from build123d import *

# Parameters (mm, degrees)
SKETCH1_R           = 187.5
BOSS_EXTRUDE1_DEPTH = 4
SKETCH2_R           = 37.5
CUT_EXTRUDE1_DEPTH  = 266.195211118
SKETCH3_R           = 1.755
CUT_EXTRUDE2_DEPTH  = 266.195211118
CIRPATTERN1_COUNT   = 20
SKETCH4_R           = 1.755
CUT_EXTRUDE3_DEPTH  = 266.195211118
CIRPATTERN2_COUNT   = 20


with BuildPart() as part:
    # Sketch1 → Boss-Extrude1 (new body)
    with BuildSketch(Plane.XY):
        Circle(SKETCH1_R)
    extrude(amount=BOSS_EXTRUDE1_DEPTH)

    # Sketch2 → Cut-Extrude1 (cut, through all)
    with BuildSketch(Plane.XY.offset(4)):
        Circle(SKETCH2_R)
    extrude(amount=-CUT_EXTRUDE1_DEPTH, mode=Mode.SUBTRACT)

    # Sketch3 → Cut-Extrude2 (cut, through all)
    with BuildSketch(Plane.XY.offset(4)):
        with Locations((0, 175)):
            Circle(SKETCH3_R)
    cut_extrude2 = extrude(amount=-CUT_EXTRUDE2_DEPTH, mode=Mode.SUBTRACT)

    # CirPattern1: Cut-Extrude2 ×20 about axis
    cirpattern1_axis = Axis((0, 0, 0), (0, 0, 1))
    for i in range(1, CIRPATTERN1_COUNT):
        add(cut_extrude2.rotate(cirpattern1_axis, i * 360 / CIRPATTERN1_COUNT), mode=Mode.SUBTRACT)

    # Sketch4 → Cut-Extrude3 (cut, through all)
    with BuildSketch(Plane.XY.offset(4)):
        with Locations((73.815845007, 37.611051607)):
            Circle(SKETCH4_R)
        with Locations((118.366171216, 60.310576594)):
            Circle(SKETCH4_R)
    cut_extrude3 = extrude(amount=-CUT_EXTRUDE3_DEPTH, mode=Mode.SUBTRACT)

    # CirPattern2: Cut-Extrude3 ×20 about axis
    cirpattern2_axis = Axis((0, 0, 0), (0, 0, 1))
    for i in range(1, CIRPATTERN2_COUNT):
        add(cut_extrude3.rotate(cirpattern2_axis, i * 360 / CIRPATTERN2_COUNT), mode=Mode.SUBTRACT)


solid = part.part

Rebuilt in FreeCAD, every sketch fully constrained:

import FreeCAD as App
import Part
import Sketcher

V = App.Vector

doc = App.newDocument("Part")
body = doc.addObject("PartDesign::Body", "Body")

# Sketch on XY plane
sketch1 = body.newObject("Sketcher::SketchObject", "Sketch")
sketch1.AttachmentSupport = (doc.getObject("XY_Plane"), [""])
sketch1.MapMode = "FlatFace"
sketch1.addGeometry(Part.Circle(V(0, 0, 0), V(0, 0, 1), 187.5), False)
sketch1.addConstraint([
    Sketcher.Constraint("Coincident", 0, 3, -1, 1),
    Sketcher.Constraint("Diameter", 0, 375.0),
])
pad1 = body.newObject("PartDesign::Pad", "Pad")
pad1.Profile = sketch1
pad1.Length = 4

# Sketch on XY plane
sketch2 = body.newObject("Sketcher::SketchObject", "Sketch001")
sketch2.AttachmentSupport = (doc.getObject("XY_Plane"), [""])
sketch2.MapMode = "FlatFace"
sketch2.AttachmentOffset = App.Placement(V(0, 0, 4), App.Rotation())
sketch2.addGeometry(Part.Circle(V(0, 0, 0), V(0, 0, 1), 37.5), False)
sketch2.addConstraint([
    Sketcher.Constraint("Coincident", 0, 3, -1, 1),
    Sketcher.Constraint("Diameter", 0, 75.0),
])
pocket1 = body.newObject("PartDesign::Pocket", "Pocket")
pocket1.Profile = sketch2
pocket1.Type = "ThroughAll"

# Sketch on XY plane
sketch3 = body.newObject("Sketcher::SketchObject", "Sketch002")
sketch3.AttachmentSupport = (doc.getObject("XY_Plane"), [""])
sketch3.MapMode = "FlatFace"
sketch3.AttachmentOffset = App.Placement(V(0, 0, 4), App.Rotation())
sketch3.addGeometry(Part.Circle(V(0, 175, 0), V(0, 0, 1), 1.755), False)
sketch3.addConstraint([
    Sketcher.Constraint("PointOnObject", 0, 3, -2),
    Sketcher.Constraint("Diameter", 0, 3.51),
    Sketcher.Constraint("DistanceY", -1, 1, 0, 3, 175.0),
])
pocket2 = body.newObject("PartDesign::Pocket", "Pocket001")
pocket2.Profile = sketch3
pocket2.Type = "ThroughAll"
doc.recompute()

polarpattern = body.newObject("PartDesign::PolarPattern", "PolarPattern")
polarpattern.Originals = [pocket2]
polarpattern.Axis = (doc.getObject("Z_Axis"), [""])
polarpattern.Angle = 360
polarpattern.Occurrences = 20
body.Tip = polarpattern

# Sketch on XY plane
sketch4 = body.newObject("Sketcher::SketchObject", "Sketch003")
sketch4.AttachmentSupport = (doc.getObject("XY_Plane"), [""])
sketch4.MapMode = "FlatFace"
sketch4.AttachmentOffset = App.Placement(V(0, 0, 4), App.Rotation())
sketch4.addGeometry([
    Part.Circle(V(73.815845, 37.611052, 0), V(0, 0, 1), 1.755),
    Part.Circle(V(118.366171, 60.310577, 0), V(0, 0, 1), 1.755),
], False)
sketch4.addConstraint([
    Sketcher.Constraint("Equal", 0, 1),
    Sketcher.Constraint("Diameter", 0, 3.51),
    Sketcher.Constraint("DistanceY", -1, 1, 0, 3, 37.611052),
    Sketcher.Constraint("DistanceX", -1, 1, 1, 3, 118.366171),
    Sketcher.Constraint("DistanceX", -1, 1, 0, 3, 73.815845),
    Sketcher.Constraint("DistanceY", -1, 1, 1, 3, 60.310577),
])
pocket3 = body.newObject("PartDesign::Pocket", "Pocket002")
pocket3.Profile = sketch4
pocket3.Type = "ThroughAll"
doc.recompute()

polarpattern2 = body.newObject("PartDesign::PolarPattern", "PolarPattern001")
polarpattern2.Originals = [pocket3]
polarpattern2.Axis = (doc.getObject("Z_Axis"), [""])
polarpattern2.Angle = 360
polarpattern2.Occurrences = 20
body.Tip = polarpattern2

doc.recompute()
